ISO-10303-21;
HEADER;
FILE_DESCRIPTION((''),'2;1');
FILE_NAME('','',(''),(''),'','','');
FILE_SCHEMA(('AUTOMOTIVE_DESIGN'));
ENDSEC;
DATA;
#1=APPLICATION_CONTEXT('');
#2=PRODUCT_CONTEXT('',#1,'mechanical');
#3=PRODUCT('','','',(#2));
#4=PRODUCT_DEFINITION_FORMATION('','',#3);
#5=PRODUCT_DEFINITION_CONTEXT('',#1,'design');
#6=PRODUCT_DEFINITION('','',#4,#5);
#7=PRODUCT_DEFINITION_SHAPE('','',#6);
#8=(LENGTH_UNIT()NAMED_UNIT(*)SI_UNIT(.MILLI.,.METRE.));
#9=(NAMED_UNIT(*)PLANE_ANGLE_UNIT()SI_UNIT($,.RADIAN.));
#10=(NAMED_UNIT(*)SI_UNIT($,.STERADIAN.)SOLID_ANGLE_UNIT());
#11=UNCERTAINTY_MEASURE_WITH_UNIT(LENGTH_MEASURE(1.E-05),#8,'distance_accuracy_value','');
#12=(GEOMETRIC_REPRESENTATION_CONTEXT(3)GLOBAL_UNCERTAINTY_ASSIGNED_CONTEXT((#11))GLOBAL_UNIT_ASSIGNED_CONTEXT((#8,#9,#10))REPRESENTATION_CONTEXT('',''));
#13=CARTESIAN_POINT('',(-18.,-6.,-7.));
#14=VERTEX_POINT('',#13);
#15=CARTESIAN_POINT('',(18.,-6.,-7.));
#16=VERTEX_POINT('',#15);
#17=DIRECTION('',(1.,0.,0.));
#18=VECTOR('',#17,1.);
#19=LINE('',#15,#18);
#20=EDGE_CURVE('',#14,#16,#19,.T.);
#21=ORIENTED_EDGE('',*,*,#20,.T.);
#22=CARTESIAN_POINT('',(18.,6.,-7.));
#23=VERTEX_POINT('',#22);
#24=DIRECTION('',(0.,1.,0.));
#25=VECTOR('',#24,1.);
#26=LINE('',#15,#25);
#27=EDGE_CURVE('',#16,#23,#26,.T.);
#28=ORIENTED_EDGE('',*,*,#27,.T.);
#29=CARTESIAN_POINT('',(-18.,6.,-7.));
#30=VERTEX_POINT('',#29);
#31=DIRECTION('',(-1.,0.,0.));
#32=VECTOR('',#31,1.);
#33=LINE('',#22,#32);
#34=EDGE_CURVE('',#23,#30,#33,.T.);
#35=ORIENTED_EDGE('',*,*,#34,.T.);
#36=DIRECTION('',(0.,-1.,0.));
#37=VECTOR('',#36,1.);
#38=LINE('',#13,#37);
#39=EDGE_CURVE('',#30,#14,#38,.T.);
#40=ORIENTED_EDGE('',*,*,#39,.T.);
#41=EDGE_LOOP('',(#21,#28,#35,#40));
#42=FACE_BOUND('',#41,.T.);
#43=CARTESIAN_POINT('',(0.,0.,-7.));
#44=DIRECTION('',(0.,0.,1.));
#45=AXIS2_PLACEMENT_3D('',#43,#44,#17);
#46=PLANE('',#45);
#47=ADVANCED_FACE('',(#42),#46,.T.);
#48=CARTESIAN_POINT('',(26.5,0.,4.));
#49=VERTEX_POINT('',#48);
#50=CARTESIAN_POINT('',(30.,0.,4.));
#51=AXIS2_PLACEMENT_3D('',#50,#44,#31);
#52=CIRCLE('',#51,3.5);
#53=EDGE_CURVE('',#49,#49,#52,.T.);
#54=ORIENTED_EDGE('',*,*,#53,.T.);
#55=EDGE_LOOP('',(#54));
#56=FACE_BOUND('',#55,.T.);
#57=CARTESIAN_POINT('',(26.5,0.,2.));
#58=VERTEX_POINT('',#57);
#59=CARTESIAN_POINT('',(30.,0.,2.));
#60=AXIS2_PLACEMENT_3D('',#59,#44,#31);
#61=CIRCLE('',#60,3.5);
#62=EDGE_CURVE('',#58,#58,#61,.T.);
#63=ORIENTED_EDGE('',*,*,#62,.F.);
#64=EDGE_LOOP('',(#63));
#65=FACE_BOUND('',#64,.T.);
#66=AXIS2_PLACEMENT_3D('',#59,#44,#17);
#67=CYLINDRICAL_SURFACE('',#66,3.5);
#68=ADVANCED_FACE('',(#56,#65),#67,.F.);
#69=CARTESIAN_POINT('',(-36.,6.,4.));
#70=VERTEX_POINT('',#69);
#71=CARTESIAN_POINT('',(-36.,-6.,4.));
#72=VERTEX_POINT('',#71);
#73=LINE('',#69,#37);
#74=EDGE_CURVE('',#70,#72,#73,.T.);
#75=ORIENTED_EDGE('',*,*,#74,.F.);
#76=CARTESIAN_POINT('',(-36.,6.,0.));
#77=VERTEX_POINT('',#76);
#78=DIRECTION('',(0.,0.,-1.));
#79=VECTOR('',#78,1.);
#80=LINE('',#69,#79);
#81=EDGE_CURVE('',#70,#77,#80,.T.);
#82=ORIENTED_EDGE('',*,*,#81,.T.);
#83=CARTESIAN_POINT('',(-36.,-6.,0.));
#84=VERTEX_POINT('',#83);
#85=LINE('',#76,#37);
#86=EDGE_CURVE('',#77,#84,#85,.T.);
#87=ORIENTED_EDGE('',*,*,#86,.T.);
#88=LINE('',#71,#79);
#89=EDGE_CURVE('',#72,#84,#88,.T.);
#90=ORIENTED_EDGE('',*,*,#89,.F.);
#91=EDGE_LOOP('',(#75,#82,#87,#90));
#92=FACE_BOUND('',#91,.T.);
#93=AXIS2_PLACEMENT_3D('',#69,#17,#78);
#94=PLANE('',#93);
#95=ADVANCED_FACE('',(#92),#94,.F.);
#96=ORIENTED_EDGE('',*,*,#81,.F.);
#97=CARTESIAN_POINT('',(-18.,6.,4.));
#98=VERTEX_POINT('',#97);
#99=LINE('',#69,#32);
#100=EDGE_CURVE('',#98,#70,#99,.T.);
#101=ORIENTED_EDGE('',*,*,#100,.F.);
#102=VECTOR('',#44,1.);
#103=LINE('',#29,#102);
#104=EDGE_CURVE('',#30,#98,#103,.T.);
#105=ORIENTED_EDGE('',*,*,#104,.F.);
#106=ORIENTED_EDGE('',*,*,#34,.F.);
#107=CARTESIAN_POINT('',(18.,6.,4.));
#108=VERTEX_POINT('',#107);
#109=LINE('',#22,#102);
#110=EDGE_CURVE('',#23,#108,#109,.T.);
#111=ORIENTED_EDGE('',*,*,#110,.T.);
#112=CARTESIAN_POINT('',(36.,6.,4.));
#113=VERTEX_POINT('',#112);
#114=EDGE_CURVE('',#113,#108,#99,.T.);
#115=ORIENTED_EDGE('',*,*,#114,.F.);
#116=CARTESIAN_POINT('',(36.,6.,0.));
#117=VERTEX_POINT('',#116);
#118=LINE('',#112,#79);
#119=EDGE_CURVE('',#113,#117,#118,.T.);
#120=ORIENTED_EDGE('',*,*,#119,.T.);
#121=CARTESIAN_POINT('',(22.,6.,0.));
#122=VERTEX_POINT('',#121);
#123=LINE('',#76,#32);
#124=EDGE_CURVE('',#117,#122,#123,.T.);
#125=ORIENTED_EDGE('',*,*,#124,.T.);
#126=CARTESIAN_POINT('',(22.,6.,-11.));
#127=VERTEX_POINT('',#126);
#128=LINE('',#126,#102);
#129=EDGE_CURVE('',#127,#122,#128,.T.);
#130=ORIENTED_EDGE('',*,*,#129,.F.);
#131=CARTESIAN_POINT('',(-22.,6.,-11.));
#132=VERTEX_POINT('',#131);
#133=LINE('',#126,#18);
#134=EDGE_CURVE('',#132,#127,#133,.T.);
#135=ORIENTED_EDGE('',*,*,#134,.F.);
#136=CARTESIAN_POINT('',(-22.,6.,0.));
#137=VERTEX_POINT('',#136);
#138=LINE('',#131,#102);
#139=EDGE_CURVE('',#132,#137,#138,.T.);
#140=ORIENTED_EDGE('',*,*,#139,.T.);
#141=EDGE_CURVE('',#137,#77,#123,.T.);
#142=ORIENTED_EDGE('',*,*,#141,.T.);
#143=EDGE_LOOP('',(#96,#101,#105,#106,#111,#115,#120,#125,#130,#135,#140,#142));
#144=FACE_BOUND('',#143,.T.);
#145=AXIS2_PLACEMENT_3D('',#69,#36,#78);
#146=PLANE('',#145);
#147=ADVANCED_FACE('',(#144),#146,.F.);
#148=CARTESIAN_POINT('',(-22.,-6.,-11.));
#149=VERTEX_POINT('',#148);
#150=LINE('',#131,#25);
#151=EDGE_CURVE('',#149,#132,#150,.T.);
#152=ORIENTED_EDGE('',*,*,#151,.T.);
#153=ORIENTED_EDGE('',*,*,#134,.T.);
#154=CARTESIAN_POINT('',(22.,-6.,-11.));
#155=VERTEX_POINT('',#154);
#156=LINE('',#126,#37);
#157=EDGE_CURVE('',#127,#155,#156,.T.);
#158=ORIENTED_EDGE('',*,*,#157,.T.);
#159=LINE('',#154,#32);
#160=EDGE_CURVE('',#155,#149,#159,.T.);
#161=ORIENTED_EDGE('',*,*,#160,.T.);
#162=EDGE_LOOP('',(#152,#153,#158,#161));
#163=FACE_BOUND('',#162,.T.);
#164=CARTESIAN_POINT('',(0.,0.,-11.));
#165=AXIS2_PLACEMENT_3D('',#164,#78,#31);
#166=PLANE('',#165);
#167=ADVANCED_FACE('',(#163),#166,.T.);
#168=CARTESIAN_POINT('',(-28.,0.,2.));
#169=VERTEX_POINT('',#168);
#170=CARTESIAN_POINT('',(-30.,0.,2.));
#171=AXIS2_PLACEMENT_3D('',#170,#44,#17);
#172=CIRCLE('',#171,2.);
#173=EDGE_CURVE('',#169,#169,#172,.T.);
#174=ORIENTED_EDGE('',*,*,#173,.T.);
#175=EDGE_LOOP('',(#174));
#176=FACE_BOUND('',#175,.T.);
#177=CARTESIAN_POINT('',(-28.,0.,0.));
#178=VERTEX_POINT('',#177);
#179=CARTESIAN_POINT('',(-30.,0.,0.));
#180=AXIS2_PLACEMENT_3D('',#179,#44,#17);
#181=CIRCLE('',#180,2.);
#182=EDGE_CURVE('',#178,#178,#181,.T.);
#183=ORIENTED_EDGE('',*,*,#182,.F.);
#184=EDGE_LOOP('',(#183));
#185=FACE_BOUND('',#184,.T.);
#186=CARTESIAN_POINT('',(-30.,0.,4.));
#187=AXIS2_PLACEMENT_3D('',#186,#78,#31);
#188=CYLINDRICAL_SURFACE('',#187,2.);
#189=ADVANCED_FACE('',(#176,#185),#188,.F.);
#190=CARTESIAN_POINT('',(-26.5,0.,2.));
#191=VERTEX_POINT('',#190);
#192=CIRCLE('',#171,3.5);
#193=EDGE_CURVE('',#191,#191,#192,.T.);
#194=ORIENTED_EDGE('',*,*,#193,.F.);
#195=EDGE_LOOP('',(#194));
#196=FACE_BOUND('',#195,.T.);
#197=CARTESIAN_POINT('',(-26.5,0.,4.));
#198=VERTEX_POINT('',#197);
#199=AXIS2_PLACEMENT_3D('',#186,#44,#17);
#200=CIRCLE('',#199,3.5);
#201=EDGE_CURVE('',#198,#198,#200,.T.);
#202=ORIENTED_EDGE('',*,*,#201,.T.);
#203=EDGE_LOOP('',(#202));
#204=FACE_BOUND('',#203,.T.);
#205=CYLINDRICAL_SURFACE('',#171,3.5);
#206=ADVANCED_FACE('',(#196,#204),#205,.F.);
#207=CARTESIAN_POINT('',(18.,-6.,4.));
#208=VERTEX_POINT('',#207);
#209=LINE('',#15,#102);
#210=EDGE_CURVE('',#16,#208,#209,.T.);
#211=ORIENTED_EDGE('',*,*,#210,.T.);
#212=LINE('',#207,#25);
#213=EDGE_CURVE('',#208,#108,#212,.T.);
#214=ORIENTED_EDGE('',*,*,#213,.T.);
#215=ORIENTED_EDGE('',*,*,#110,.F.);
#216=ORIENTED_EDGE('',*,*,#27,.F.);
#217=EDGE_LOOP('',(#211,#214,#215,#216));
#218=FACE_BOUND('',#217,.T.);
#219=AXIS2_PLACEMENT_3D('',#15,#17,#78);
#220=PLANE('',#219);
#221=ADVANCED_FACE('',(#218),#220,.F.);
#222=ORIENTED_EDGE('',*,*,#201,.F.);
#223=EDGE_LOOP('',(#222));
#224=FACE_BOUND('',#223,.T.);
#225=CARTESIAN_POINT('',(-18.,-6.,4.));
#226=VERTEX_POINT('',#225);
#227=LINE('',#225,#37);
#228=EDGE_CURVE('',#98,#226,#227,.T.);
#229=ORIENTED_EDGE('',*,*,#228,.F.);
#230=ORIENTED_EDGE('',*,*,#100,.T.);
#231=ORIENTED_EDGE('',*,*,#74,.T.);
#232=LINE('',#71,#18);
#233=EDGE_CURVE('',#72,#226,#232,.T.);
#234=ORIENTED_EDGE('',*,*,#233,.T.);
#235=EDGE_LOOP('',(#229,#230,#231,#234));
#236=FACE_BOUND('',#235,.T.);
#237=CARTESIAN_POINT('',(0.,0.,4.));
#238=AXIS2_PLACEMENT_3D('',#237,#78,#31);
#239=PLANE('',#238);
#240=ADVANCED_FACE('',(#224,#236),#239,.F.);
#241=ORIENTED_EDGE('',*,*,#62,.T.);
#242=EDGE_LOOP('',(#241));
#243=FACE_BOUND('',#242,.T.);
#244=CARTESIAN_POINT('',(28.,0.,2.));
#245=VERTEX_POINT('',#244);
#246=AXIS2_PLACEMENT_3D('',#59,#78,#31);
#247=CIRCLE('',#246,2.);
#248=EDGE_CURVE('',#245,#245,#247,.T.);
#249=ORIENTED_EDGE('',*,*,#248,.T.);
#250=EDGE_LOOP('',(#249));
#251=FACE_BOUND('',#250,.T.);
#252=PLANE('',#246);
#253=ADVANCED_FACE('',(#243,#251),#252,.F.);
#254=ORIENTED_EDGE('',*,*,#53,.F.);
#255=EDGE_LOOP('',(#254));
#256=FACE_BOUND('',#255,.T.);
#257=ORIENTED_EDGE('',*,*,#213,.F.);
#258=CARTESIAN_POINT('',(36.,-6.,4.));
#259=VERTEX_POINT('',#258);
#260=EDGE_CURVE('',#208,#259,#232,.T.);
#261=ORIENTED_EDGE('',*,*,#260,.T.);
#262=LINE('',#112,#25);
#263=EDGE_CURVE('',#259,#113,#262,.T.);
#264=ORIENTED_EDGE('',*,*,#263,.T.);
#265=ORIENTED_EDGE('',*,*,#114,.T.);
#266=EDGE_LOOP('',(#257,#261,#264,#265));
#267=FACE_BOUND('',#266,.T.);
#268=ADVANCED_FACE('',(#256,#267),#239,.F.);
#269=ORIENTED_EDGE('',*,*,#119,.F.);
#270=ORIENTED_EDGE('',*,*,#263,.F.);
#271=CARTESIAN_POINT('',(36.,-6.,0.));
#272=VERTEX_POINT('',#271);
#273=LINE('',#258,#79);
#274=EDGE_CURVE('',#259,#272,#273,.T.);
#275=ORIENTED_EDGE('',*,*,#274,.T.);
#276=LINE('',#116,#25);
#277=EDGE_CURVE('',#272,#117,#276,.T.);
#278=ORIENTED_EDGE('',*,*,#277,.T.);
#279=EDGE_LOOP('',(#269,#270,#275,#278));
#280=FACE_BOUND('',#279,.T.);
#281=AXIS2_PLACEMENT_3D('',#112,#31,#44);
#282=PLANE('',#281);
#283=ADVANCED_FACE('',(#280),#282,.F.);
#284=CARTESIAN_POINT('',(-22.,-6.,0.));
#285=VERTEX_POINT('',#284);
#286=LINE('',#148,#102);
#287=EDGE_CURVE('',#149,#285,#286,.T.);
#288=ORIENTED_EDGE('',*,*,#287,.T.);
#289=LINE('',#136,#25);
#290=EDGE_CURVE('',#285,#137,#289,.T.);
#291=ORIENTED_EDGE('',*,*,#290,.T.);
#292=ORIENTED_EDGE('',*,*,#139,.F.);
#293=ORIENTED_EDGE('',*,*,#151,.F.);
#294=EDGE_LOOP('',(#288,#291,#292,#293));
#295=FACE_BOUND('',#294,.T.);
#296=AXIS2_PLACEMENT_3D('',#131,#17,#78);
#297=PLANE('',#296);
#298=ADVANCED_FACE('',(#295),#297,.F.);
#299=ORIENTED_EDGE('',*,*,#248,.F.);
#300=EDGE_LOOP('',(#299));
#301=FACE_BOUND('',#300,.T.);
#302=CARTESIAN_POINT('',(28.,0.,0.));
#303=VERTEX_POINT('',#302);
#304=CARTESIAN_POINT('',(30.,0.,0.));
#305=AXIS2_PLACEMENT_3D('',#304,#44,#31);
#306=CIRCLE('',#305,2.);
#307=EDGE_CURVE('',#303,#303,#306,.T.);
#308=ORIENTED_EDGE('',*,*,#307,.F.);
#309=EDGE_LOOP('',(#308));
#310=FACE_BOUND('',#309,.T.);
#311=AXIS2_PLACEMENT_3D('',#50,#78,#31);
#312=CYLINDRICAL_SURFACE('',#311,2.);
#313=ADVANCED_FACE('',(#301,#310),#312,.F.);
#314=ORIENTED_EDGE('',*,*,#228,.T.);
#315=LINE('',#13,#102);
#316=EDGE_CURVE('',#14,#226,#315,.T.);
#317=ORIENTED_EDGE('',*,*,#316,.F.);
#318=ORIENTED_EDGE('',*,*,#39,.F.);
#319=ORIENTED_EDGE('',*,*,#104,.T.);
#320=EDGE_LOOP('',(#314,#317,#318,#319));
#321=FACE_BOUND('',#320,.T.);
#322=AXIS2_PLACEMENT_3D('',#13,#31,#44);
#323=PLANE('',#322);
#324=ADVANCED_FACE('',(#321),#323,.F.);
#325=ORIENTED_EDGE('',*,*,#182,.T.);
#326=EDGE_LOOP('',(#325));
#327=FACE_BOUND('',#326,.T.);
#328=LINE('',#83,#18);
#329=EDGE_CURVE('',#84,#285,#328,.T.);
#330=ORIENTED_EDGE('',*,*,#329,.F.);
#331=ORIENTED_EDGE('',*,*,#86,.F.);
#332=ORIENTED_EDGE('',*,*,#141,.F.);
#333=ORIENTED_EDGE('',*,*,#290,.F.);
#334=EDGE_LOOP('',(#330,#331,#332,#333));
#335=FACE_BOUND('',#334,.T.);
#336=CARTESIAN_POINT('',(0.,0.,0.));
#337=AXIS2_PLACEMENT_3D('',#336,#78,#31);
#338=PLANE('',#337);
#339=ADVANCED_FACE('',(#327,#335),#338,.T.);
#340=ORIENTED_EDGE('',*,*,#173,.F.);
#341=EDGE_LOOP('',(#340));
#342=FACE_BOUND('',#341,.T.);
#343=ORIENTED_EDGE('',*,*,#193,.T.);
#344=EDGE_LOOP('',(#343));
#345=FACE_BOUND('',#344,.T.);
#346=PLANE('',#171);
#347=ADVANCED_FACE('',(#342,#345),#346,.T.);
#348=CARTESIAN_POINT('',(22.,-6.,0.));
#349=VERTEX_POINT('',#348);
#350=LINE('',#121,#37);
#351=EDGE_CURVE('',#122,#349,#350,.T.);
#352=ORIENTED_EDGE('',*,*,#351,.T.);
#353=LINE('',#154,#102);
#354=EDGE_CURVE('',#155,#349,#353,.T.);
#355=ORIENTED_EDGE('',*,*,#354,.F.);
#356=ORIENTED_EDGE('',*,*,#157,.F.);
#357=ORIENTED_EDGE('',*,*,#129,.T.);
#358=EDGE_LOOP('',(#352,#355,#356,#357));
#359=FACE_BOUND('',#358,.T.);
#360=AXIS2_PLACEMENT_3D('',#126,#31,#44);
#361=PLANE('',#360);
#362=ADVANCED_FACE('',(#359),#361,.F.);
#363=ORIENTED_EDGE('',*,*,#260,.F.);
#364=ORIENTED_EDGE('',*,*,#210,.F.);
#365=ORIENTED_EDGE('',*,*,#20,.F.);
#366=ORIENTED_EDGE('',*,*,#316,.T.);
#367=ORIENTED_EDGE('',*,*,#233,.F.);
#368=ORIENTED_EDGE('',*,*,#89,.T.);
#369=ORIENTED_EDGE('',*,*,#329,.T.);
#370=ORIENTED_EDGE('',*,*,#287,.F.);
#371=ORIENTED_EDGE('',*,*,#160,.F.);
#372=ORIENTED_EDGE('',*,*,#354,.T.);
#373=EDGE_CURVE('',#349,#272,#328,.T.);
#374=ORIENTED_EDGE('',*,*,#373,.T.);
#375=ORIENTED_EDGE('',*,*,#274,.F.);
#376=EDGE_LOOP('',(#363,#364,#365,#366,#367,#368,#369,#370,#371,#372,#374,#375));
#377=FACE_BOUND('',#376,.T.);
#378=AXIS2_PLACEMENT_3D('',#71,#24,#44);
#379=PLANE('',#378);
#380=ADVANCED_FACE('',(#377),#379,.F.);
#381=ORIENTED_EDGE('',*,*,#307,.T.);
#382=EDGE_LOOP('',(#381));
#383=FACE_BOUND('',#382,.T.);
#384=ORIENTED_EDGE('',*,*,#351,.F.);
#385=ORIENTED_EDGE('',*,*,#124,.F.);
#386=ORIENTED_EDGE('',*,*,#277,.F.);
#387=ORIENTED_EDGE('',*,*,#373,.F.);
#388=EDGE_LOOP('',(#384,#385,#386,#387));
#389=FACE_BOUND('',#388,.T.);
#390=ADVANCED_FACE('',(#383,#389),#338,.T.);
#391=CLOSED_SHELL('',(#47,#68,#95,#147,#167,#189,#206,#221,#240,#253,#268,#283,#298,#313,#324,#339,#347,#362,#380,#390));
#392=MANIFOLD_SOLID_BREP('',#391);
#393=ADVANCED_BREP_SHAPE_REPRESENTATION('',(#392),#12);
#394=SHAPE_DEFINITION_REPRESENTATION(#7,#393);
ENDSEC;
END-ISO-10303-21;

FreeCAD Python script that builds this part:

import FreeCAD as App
import Part
import Sketcher
Q = App.Units.Quantity

doc = App.newDocument("Part")
params = doc.addObject("Spreadsheet::Sheet", "Params")
for row, (alias, value) in enumerate([
    ("sketch1_diameter", "4 mm"),
    ("sketch1_width", "72 mm"),
    ("sketch1_height", "12 mm"),
    ("pad1_length", "4 mm"),
    ("sketch2_diameter", "7 mm"),
    ("pocket1_length", "2 mm"),
    ("sketch3_width", "44 mm"),
    ("sketch3_height", "12 mm"),
    ("pad2_length", "11 mm"),
    ("sketch4_width", "36 mm"),
    ("sketch4_height", "12 mm"),
    ("pocket2_length", "11 mm"),
], start=1):
    params.set(f"A{row}", alias)
    params.set(f"B{row}", "=" + value)
    params.setAlias(f"B{row}", alias)

body = doc.addObject("PartDesign::Body", "Body")

sketch1 = body.newObject("Sketcher::SketchObject", "Sketch")
sketch1.AttachmentSupport = (doc.getObject("XY_Plane"), [""])
sketch1.MapMode = "FlatFace"
sketch1.addGeometry([
    Part.LineSegment(App.Vector(-36, 6, 0), App.Vector(-36, -6, 0)),
    Part.LineSegment(App.Vector(-36, -6, 0), App.Vector(36, -6, 0)),
    Part.LineSegment(App.Vector(36, -6, 0), App.Vector(36, 6, 0)),
    Part.LineSegment(App.Vector(36, 6, 0), App.Vector(-36, 6, 0)),
    Part.Circle(App.Vector(-30, 0, 0), App.Vector(0, 0, 1), 2),
    Part.Circle(App.Vector(30, 0, 0), App.Vector(0, 0, 1), 2),
], False)
sketch1.addConstraint([
    Sketcher.Constraint("Coincident", 0, 2, 1, 1),
    Sketcher.Constraint("Coincident", 1, 2, 2, 1),
    Sketcher.Constraint("Coincident", 2, 2, 3, 1),
    Sketcher.Constraint("Coincident", 3, 2, 0, 1),
    Sketcher.Constraint("Vertical", 0),
    Sketcher.Constraint("Horizontal", 1),
    Sketcher.Constraint("Vertical", 2),
    Sketcher.Constraint("Horizontal", 3),
    Sketcher.Constraint("Equal", 4, 5),
    Sketcher.Constraint("Symmetric", 4, 3, 5, 3, -1, 1),
    Sketcher.Constraint("Symmetric", 0, 2, 2, 2, -1, 1),
    Sketcher.Constraint("PointOnObject", 4, 3, -1),
    Sketcher.Constraint("Diameter", 4, Q("4 mm")),
    Sketcher.Constraint("DistanceX", 1, 1, 1, 2, Q("72 mm")),
    Sketcher.Constraint("DistanceY", 0, 2, 0, 1, Q("12 mm")),
    Sketcher.Constraint("DistanceX", 4, 3, -1, 1, Q("30 mm")),
])
sketch1.setExpression("Constraints[12]", "Params.sketch1_diameter")
sketch1.setExpression("Constraints[13]", "Params.sketch1_width")
sketch1.setExpression("Constraints[14]", "Params.sketch1_height")
pad1 = body.newObject("PartDesign::Pad", "Pad")
pad1.Profile = sketch1
pad1.setExpression("Length", "Params.pad1_length")

sketch2 = body.newObject("Sketcher::SketchObject", "Sketch001")
sketch2.AttachmentSupport = (doc.getObject("XY_Plane"), [""])
sketch2.MapMode = "FlatFace"
sketch2.AttachmentOffset = App.Placement(App.Vector(0, 0, 4), App.Rotation())
sketch2.addGeometry([
    Part.Circle(App.Vector(-30, 0, 0), App.Vector(0, 0, 1), 3.5),
    Part.Circle(App.Vector(30, 0, 0), App.Vector(0, 0, 1), 3.5),
], False)
sketch2.addConstraint([
    Sketcher.Constraint("Equal", 0, 1),
    Sketcher.Constraint("Symmetric", 0, 3, 1, 3, -1, 1),
    Sketcher.Constraint("PointOnObject", 0, 3, -1),
    Sketcher.Constraint("Diameter", 0, Q("7 mm")),
    Sketcher.Constraint("DistanceX", 0, 3, -1, 1, Q("30 mm")),
])
sketch2.setExpression("Constraints[3]", "Params.sketch2_diameter")
pocket1 = body.newObject("PartDesign::Pocket", "Pocket")
pocket1.Profile = sketch2
pocket1.setExpression("Length", "Params.pocket1_length")

sketch3 = body.newObject("Sketcher::SketchObject", "Sketch002")
sketch3.AttachmentSupport = (doc.getObject("XY_Plane"), [""])
sketch3.MapMode = "FlatFace"
sketch3.addGeometry([
    Part.LineSegment(App.Vector(22, 6, 0), App.Vector(22, -6, 0)),
    Part.LineSegment(App.Vector(22, -6, 0), App.Vector(-22, -6, 0)),
    Part.LineSegment(App.Vector(-22, -6, 0), App.Vector(-22, 6, 0)),
    Part.LineSegment(App.Vector(-22, 6, 0), App.Vector(22, 6, 0)),
], False)
sketch3.addConstraint([
    Sketcher.Constraint("Coincident", 0, 2, 1, 1),
    Sketcher.Constraint("Coincident", 1, 2, 2, 1),
    Sketcher.Constraint("Coincident", 2, 2, 3, 1),
    Sketcher.Constraint("Coincident", 3, 2, 0, 1),
    Sketcher.Constraint("Vertical", 0),
    Sketcher.Constraint("Horizontal", 1),
    Sketcher.Constraint("Vertical", 2),
    Sketcher.Constraint("Horizontal", 3),
    Sketcher.Constraint("Symmetric", 0, 2, 2, 2, -1, 1),
    Sketcher.Constraint("DistanceX", 1, 2, 1, 1, Q("44 mm")),
    Sketcher.Constraint("DistanceY", 0, 2, 0, 1, Q("12 mm")),
])
sketch3.setExpression("Constraints[9]", "Params.sketch3_width")
sketch3.setExpression("Constraints[10]", "Params.sketch3_height")
pad2 = body.newObject("PartDesign::Pad", "Pad001")
pad2.Profile = sketch3
pad2.setExpression("Length", "Params.pad2_length")
pad2.Reversed = True

sketch4 = body.newObject("Sketcher::SketchObject", "Sketch003")
sketch4.AttachmentSupport = (doc.getObject("XY_Plane"), [""])
sketch4.MapMode = "FlatFace"
sketch4.AttachmentOffset = App.Placement(App.Vector(0, 0, 4), App.Rotation())
sketch4.addGeometry([
    Part.LineSegment(App.Vector(-18, 6, 0), App.Vector(-18, -6, 0)),
    Part.LineSegment(App.Vector(-18, -6, 0), App.Vector(18, -6, 0)),
    Part.LineSegment(App.Vector(18, -6, 0), App.Vector(18, 6, 0)),
    Part.LineSegment(App.Vector(18, 6, 0), App.Vector(-18, 6, 0)),
], False)
sketch4.addConstraint([
    Sketcher.Constraint("Coincident", 0, 2, 1, 1),
    Sketcher.Constraint("Coincident", 1, 2, 2, 1),
    Sketcher.Constraint("Coincident", 2, 2, 3, 1),
    Sketcher.Constraint("Coincident", 3, 2, 0, 1),
    Sketcher.Constraint("Vertical", 0),
    Sketcher.Constraint("Horizontal", 1),
    Sketcher.Constraint("Vertical", 2),
    Sketcher.Constraint("Horizontal", 3),
    Sketcher.Constraint("Symmetric", 0, 2, 2, 2, -1, 1),
    Sketcher.Constraint("DistanceX", 1, 1, 1, 2, Q("36 mm")),
    Sketcher.Constraint("DistanceY", 0, 2, 0, 1, Q("12 mm")),
])
sketch4.setExpression("Constraints[9]", "Params.sketch4_width")
sketch4.setExpression("Constraints[10]", "Params.sketch4_height")
pocket2 = body.newObject("PartDesign::Pocket", "Pocket001")
pocket2.Profile = sketch4
pocket2.setExpression("Length", "Params.pocket2_length")

doc.recompute()
